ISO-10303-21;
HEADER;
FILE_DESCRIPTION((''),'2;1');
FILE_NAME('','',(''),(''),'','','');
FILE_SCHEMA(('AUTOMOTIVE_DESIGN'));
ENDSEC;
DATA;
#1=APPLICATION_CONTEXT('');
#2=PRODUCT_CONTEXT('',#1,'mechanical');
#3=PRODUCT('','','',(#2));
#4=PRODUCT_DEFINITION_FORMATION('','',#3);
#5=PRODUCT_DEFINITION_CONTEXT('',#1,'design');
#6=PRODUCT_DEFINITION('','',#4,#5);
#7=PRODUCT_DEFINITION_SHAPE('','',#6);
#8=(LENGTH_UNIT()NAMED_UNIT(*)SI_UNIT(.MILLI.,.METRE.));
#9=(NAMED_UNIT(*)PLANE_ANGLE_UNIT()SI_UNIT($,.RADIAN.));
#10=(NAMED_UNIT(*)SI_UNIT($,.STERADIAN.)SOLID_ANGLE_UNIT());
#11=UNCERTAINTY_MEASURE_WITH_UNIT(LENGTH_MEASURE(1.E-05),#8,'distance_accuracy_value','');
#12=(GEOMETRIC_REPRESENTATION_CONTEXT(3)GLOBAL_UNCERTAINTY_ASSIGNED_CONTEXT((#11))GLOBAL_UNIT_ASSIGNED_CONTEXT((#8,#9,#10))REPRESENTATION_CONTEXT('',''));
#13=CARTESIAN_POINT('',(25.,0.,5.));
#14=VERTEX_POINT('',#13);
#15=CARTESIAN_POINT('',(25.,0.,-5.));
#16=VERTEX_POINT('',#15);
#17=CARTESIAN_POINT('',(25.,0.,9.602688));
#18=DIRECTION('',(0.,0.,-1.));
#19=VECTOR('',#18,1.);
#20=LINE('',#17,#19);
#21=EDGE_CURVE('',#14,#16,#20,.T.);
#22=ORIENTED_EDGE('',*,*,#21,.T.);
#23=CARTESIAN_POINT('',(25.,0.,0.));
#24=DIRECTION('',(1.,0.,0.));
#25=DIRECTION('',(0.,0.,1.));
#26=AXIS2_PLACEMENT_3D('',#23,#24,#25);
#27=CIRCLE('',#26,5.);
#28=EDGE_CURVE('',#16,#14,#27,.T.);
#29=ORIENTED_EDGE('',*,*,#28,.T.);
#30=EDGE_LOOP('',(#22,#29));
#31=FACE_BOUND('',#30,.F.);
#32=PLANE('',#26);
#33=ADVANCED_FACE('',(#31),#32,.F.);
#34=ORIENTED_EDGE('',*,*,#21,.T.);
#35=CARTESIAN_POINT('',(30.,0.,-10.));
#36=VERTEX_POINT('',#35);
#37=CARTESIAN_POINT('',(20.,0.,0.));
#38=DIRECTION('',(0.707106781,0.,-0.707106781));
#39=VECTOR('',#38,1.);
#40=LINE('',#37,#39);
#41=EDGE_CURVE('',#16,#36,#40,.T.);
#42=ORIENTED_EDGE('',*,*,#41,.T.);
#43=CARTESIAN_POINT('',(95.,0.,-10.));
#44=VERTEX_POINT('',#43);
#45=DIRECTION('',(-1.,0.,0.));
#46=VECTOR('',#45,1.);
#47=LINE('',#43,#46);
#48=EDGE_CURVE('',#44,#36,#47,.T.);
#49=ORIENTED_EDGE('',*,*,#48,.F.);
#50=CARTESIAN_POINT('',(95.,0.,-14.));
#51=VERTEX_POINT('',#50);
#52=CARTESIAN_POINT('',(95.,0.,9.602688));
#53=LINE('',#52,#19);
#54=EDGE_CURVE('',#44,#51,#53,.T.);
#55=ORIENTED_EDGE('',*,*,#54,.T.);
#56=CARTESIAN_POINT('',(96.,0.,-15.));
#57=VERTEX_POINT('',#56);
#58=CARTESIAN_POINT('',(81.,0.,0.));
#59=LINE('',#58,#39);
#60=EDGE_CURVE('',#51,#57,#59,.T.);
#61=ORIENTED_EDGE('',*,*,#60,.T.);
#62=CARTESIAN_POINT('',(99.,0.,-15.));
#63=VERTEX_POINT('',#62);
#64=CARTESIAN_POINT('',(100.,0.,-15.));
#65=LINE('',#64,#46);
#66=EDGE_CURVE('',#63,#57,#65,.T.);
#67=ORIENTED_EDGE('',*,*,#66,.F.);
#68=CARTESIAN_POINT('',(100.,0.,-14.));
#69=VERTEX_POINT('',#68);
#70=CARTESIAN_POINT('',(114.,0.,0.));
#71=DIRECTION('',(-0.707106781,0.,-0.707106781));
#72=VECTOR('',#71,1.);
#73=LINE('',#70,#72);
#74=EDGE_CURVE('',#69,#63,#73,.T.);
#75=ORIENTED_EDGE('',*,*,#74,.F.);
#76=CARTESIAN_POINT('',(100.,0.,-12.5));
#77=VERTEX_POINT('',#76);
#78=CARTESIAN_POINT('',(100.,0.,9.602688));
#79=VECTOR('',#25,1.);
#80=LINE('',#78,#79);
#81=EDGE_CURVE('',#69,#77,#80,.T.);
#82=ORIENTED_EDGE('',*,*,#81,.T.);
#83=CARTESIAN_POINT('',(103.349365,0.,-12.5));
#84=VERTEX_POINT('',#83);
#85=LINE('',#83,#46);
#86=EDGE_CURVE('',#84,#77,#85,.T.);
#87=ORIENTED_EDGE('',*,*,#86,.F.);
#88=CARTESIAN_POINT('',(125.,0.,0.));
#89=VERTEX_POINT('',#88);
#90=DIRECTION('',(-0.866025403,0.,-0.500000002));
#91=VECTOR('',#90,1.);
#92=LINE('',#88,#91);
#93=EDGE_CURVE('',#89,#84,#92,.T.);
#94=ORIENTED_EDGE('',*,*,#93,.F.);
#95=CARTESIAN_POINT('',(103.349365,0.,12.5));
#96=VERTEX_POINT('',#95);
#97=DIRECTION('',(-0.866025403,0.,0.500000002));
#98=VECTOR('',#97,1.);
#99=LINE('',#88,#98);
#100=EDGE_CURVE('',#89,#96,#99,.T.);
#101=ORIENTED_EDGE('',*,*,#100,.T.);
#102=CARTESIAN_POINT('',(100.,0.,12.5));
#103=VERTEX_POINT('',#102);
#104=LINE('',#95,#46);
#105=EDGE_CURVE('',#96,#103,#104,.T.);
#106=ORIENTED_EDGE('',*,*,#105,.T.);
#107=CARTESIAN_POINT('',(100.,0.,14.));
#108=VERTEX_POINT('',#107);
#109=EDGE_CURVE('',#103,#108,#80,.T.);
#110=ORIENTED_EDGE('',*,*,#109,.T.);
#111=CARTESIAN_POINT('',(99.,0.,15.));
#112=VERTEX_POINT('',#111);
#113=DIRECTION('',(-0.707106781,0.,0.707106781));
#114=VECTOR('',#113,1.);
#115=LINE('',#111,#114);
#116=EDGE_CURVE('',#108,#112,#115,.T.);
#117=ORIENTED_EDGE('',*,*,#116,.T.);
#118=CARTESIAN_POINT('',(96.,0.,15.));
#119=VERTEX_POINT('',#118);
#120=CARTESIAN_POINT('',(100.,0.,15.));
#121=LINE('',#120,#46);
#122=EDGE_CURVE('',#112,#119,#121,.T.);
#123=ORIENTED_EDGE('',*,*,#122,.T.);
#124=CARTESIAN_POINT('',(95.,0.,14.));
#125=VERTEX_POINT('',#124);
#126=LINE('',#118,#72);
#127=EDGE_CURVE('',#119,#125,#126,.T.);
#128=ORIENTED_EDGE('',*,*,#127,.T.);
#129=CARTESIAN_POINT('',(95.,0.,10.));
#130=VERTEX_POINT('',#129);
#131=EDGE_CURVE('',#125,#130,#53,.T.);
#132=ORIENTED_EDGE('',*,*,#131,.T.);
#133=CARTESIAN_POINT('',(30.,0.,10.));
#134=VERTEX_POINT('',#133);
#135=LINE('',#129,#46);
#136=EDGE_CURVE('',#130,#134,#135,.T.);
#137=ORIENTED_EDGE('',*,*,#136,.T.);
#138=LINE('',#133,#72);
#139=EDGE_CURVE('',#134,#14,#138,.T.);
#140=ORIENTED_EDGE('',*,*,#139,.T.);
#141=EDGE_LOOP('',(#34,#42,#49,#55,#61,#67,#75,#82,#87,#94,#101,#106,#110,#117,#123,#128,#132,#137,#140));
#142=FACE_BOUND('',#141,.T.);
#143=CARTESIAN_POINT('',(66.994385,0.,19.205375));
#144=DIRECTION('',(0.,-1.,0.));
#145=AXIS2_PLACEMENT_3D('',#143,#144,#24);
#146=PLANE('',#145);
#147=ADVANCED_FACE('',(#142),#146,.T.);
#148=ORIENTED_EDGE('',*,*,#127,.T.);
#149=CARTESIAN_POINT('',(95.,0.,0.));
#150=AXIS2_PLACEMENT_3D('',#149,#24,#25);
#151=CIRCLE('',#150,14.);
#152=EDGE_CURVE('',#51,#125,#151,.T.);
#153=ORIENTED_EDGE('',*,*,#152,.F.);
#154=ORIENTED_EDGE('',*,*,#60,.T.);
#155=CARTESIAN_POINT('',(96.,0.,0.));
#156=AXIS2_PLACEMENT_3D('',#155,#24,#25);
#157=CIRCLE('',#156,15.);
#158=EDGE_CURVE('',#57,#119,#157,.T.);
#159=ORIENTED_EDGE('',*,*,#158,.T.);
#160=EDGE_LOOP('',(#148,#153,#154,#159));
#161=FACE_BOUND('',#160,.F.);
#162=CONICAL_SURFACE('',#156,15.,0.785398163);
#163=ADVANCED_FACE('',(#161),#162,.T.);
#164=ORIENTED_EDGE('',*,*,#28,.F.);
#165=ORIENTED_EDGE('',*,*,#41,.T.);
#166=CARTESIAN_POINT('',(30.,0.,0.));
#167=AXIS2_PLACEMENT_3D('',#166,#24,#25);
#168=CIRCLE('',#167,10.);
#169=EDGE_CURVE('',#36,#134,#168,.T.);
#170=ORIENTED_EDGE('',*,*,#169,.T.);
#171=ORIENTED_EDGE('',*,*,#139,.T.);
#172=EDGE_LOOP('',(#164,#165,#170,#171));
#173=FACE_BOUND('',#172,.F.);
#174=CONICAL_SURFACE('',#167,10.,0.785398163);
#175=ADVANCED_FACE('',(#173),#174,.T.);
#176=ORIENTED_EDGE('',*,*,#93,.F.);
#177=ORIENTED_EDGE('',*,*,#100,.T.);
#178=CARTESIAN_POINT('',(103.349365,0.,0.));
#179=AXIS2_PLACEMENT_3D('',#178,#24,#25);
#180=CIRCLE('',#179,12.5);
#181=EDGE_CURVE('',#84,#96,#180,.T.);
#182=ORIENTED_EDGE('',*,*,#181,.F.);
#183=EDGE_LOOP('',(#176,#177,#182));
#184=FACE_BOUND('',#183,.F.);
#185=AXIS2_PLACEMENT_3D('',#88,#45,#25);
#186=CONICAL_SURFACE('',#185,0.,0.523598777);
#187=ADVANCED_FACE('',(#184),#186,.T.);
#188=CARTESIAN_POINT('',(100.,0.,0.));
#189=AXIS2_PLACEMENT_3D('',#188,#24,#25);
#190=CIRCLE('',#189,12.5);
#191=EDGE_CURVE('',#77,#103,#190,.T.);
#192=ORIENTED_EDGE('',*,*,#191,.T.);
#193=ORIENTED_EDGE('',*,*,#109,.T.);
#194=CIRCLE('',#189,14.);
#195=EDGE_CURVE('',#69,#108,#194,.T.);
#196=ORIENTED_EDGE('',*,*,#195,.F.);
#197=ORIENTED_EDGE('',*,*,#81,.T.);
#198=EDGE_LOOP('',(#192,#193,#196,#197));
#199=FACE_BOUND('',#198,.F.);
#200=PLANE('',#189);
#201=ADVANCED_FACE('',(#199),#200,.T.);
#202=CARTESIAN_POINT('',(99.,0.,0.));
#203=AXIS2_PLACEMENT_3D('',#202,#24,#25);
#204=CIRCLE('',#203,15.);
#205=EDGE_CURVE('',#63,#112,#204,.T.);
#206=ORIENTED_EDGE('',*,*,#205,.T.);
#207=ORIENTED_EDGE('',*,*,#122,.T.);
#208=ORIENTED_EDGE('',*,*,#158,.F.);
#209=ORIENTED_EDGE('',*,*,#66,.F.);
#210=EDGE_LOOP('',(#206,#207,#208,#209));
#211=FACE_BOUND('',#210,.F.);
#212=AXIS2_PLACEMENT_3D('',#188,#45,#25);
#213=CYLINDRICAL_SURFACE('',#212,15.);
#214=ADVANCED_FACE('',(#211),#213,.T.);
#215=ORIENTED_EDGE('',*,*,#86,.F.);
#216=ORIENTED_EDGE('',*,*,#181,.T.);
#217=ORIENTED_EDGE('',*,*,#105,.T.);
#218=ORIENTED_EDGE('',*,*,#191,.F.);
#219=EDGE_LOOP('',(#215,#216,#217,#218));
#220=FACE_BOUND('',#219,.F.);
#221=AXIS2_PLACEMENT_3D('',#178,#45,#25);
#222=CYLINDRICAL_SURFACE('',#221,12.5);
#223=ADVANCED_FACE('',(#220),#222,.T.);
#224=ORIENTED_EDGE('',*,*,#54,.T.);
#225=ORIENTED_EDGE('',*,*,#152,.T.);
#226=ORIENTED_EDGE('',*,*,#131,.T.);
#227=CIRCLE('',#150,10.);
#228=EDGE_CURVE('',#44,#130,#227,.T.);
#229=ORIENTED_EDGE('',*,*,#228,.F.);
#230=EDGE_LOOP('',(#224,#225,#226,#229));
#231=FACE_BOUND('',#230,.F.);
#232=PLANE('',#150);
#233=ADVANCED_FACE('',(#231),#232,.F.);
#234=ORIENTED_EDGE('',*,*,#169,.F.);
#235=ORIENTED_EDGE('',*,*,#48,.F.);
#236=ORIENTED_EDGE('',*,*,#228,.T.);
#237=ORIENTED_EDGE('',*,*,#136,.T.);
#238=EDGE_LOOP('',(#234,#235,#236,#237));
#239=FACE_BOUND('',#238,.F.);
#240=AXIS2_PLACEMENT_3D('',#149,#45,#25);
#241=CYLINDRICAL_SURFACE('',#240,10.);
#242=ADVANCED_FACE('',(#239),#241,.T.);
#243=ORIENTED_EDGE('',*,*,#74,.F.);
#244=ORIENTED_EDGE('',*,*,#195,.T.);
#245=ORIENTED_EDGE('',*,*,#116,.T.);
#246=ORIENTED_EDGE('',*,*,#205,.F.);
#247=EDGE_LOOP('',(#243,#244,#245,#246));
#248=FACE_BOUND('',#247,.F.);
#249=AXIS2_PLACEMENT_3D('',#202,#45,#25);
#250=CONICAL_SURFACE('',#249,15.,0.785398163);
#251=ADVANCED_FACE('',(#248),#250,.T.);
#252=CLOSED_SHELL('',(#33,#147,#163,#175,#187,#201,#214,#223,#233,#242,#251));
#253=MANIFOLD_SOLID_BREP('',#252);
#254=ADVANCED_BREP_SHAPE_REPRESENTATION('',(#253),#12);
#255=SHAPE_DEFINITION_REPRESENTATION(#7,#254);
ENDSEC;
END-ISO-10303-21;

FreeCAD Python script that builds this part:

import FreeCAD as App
import Part
import Sketcher
from FreeCAD import Vector
Q = App.Units.Quantity


def edges_at(feature, points):
    """Names of the edges that pass closest to the given points."""
    edges = feature.Shape.Edges
    near = lambda p: min(range(len(edges)), key=lambda i: edges[i].distToShape(Part.Vertex(*p))[0])
    return sorted({f"Edge{near(p) + 1}" for p in points})

doc = App.newDocument("Part")
params = doc.addObject("Spreadsheet::Sheet", "Params")
for row, (alias, value) in enumerate([
    ("sketch1_width", "70 mm"),
    ("sketch1_width2", "100 mm"),
    ("sketch1_width3", "5 mm"),
    ("sketch1_height", "10 mm"),
    ("sketch1_length", "25 mm"),
    ("revolution_angle", "360 deg"),
    ("chamfer_size", "1 mm"),
    ("chamfer2_size", "5 mm"),
    ("pocket1_length", "25 mm"),
], start=1):
    params.set(f"A{row}", alias)
    params.set(f"B{row}", "=" + value)
    params.setAlias(f"B{row}", alias)

body = doc.addObject("PartDesign::Body", "Body")

# Sketch on XZ plane
sketch1 = body.newObject("Sketcher::SketchObject", "Sketch")
sketch1.AttachmentSupport = (doc.getObject("XZ_Plane"), [""])
sketch1.MapMode = "FlatFace"
sketch1.addGeometry([
    Part.LineSegment(Vector(95, 10, 0), Vector(25, 10, 0)),  # 0
    Part.LineSegment(Vector(25, 10, 0), Vector(25, 0, 0)),  # 1
    Part.LineSegment(Vector(25, 0, 0), Vector(125, 0, 0)),  # 2
    Part.LineSegment(Vector(125, 0, 0), Vector(103.349365, 12.5, 0)),  # 3
    Part.LineSegment(Vector(103.349365, 12.5, 0), Vector(100, 12.5, 0)),  # 4
    Part.LineSegment(Vector(100, 12.5, 0), Vector(100, 15, 0)),  # 5
    Part.LineSegment(Vector(100, 15, 0), Vector(95, 15, 0)),  # 6
    Part.LineSegment(Vector(95, 15, 0), Vector(95, 10, 0)),  # 7
], False)
sketch1.addConstraint([
    Sketcher.Constraint("Coincident", 0, 2, 1, 1),
    Sketcher.Constraint("Coincident", 1, 2, 2, 1),
    Sketcher.Constraint("Coincident", 2, 2, 3, 1),
    Sketcher.Constraint("Coincident", 3, 2, 4, 1),
    Sketcher.Constraint("Coincident", 4, 2, 5, 1),
    Sketcher.Constraint("Coincident", 5, 2, 6, 1),
    Sketcher.Constraint("Coincident", 6, 2, 7, 1),
    Sketcher.Constraint("Coincident", 7, 2, 0, 1),
    Sketcher.Constraint("Horizontal", 0),
    Sketcher.Constraint("Vertical", 1),
    Sketcher.Constraint("Horizontal", 2),
    Sketcher.Constraint("Horizontal", 4),
    Sketcher.Constraint("Vertical", 5),
    Sketcher.Constraint("Horizontal", 6),
    Sketcher.Constraint("Vertical", 7),
    Sketcher.Constraint("PointOnObject", 1, 2, -1),
    Sketcher.Constraint("Equal", 6, 7),
    Sketcher.Constraint("DistanceX", 0, 2, 0, 1, Q("70 mm")),
    Sketcher.Constraint("DistanceX", 2, 1, 2, 2, Q("100 mm")),
    Sketcher.Constraint("DistanceX", 6, 2, 6, 1, Q("5 mm")),
    Sketcher.Constraint("DistanceY", 1, 2, 1, 1, Q("10 mm")),
    Sketcher.Constraint("Angle", 3, Q("150 deg")),
    Sketcher.Constraint("Distance", 3, Q("25 mm")),
    Sketcher.Constraint("DistanceX", -1, 1, 0, 2, Q("25 mm")),
])
sketch1.setExpression("Constraints[17]", "Params.sketch1_width")
sketch1.setExpression("Constraints[18]", "Params.sketch1_width2")
sketch1.setExpression("Constraints[19]", "Params.sketch1_width3")
sketch1.setExpression("Constraints[20]", "Params.sketch1_height")
sketch1.setExpression("Constraints[22]", "Params.sketch1_length")
revolution = body.newObject("PartDesign::Revolution", "Revolution")
revolution.Profile = sketch1
revolution.ReferenceAxis = (sketch1, ["H_Axis"])
revolution.setExpression("Angle", "Params.revolution_angle")
doc.recompute()

chamfer = body.newObject("PartDesign::Chamfer", "Chamfer")
chamfer.Base = (revolution, edges_at(revolution, [(100, 0, -15), (95, 0, -15)]))
chamfer.setExpression("Size", "Params.chamfer_size")
doc.recompute()

chamfer2 = body.newObject("PartDesign::Chamfer", "Chamfer001")
chamfer2.Base = (chamfer, edges_at(chamfer, [(25, 0, -10)]))
chamfer2.setExpression("Size", "Params.chamfer2_size")

# Sketch on XZ plane
sketch2 = body.newObject("Sketcher::SketchObject", "Sketch001")
sketch2.AttachmentSupport = (doc.getObject("XZ_Plane"), [""])
sketch2.MapMode = "FlatFace"
sketch2.AttachmentOffset = App.Placement(Vector(0, 0, 25), App.Rotation())
sketch2.addGeometry([
    Part.LineSegment(Vector(-10.196252, 74.455932, 0), Vector(-10.196252, -36.045182, 0)),
    Part.LineSegment(Vector(-10.196252, -36.045182, 0), Vector(144.185022, -36.045182, 0)),
    Part.LineSegment(Vector(144.185022, -36.045182, 0), Vector(144.185022, 74.455932, 0)),
    Part.LineSegment(Vector(144.185022, 74.455932, 0), Vector(-10.196252, 74.455932, 0)),
], False)
sketch2.addConstraint([
    Sketcher.Constraint("Coincident", 0, 2, 1, 1),
    Sketcher.Constraint("Coincident", 1, 2, 2, 1),
    Sketcher.Constraint("Coincident", 2, 2, 3, 1),
    Sketcher.Constraint("Coincident", 3, 2, 0, 1),
    Sketcher.Constraint("Vertical", 0),
    Sketcher.Constraint("Horizontal", 1),
    Sketcher.Constraint("Vertical", 2),
    Sketcher.Constraint("Horizontal", 3),
    Sketcher.Constraint("DistanceX", 1, 1, 1, 2, Q("154.381274 mm")),
    Sketcher.Constraint("DistanceY", 0, 2, 0, 1, Q("110.501114 mm")),
    Sketcher.Constraint("DistanceY", 0, 2, -1, 1, Q("36.045182 mm")),
    Sketcher.Constraint("DistanceX", -1, 1, 1, 2, Q("144.185022 mm")),
])
pocket1 = body.newObject("PartDesign::Pocket", "Pocket")
pocket1.Profile = sketch2
pocket1.setExpression("Length", "Params.pocket1_length")

doc.recompute()
